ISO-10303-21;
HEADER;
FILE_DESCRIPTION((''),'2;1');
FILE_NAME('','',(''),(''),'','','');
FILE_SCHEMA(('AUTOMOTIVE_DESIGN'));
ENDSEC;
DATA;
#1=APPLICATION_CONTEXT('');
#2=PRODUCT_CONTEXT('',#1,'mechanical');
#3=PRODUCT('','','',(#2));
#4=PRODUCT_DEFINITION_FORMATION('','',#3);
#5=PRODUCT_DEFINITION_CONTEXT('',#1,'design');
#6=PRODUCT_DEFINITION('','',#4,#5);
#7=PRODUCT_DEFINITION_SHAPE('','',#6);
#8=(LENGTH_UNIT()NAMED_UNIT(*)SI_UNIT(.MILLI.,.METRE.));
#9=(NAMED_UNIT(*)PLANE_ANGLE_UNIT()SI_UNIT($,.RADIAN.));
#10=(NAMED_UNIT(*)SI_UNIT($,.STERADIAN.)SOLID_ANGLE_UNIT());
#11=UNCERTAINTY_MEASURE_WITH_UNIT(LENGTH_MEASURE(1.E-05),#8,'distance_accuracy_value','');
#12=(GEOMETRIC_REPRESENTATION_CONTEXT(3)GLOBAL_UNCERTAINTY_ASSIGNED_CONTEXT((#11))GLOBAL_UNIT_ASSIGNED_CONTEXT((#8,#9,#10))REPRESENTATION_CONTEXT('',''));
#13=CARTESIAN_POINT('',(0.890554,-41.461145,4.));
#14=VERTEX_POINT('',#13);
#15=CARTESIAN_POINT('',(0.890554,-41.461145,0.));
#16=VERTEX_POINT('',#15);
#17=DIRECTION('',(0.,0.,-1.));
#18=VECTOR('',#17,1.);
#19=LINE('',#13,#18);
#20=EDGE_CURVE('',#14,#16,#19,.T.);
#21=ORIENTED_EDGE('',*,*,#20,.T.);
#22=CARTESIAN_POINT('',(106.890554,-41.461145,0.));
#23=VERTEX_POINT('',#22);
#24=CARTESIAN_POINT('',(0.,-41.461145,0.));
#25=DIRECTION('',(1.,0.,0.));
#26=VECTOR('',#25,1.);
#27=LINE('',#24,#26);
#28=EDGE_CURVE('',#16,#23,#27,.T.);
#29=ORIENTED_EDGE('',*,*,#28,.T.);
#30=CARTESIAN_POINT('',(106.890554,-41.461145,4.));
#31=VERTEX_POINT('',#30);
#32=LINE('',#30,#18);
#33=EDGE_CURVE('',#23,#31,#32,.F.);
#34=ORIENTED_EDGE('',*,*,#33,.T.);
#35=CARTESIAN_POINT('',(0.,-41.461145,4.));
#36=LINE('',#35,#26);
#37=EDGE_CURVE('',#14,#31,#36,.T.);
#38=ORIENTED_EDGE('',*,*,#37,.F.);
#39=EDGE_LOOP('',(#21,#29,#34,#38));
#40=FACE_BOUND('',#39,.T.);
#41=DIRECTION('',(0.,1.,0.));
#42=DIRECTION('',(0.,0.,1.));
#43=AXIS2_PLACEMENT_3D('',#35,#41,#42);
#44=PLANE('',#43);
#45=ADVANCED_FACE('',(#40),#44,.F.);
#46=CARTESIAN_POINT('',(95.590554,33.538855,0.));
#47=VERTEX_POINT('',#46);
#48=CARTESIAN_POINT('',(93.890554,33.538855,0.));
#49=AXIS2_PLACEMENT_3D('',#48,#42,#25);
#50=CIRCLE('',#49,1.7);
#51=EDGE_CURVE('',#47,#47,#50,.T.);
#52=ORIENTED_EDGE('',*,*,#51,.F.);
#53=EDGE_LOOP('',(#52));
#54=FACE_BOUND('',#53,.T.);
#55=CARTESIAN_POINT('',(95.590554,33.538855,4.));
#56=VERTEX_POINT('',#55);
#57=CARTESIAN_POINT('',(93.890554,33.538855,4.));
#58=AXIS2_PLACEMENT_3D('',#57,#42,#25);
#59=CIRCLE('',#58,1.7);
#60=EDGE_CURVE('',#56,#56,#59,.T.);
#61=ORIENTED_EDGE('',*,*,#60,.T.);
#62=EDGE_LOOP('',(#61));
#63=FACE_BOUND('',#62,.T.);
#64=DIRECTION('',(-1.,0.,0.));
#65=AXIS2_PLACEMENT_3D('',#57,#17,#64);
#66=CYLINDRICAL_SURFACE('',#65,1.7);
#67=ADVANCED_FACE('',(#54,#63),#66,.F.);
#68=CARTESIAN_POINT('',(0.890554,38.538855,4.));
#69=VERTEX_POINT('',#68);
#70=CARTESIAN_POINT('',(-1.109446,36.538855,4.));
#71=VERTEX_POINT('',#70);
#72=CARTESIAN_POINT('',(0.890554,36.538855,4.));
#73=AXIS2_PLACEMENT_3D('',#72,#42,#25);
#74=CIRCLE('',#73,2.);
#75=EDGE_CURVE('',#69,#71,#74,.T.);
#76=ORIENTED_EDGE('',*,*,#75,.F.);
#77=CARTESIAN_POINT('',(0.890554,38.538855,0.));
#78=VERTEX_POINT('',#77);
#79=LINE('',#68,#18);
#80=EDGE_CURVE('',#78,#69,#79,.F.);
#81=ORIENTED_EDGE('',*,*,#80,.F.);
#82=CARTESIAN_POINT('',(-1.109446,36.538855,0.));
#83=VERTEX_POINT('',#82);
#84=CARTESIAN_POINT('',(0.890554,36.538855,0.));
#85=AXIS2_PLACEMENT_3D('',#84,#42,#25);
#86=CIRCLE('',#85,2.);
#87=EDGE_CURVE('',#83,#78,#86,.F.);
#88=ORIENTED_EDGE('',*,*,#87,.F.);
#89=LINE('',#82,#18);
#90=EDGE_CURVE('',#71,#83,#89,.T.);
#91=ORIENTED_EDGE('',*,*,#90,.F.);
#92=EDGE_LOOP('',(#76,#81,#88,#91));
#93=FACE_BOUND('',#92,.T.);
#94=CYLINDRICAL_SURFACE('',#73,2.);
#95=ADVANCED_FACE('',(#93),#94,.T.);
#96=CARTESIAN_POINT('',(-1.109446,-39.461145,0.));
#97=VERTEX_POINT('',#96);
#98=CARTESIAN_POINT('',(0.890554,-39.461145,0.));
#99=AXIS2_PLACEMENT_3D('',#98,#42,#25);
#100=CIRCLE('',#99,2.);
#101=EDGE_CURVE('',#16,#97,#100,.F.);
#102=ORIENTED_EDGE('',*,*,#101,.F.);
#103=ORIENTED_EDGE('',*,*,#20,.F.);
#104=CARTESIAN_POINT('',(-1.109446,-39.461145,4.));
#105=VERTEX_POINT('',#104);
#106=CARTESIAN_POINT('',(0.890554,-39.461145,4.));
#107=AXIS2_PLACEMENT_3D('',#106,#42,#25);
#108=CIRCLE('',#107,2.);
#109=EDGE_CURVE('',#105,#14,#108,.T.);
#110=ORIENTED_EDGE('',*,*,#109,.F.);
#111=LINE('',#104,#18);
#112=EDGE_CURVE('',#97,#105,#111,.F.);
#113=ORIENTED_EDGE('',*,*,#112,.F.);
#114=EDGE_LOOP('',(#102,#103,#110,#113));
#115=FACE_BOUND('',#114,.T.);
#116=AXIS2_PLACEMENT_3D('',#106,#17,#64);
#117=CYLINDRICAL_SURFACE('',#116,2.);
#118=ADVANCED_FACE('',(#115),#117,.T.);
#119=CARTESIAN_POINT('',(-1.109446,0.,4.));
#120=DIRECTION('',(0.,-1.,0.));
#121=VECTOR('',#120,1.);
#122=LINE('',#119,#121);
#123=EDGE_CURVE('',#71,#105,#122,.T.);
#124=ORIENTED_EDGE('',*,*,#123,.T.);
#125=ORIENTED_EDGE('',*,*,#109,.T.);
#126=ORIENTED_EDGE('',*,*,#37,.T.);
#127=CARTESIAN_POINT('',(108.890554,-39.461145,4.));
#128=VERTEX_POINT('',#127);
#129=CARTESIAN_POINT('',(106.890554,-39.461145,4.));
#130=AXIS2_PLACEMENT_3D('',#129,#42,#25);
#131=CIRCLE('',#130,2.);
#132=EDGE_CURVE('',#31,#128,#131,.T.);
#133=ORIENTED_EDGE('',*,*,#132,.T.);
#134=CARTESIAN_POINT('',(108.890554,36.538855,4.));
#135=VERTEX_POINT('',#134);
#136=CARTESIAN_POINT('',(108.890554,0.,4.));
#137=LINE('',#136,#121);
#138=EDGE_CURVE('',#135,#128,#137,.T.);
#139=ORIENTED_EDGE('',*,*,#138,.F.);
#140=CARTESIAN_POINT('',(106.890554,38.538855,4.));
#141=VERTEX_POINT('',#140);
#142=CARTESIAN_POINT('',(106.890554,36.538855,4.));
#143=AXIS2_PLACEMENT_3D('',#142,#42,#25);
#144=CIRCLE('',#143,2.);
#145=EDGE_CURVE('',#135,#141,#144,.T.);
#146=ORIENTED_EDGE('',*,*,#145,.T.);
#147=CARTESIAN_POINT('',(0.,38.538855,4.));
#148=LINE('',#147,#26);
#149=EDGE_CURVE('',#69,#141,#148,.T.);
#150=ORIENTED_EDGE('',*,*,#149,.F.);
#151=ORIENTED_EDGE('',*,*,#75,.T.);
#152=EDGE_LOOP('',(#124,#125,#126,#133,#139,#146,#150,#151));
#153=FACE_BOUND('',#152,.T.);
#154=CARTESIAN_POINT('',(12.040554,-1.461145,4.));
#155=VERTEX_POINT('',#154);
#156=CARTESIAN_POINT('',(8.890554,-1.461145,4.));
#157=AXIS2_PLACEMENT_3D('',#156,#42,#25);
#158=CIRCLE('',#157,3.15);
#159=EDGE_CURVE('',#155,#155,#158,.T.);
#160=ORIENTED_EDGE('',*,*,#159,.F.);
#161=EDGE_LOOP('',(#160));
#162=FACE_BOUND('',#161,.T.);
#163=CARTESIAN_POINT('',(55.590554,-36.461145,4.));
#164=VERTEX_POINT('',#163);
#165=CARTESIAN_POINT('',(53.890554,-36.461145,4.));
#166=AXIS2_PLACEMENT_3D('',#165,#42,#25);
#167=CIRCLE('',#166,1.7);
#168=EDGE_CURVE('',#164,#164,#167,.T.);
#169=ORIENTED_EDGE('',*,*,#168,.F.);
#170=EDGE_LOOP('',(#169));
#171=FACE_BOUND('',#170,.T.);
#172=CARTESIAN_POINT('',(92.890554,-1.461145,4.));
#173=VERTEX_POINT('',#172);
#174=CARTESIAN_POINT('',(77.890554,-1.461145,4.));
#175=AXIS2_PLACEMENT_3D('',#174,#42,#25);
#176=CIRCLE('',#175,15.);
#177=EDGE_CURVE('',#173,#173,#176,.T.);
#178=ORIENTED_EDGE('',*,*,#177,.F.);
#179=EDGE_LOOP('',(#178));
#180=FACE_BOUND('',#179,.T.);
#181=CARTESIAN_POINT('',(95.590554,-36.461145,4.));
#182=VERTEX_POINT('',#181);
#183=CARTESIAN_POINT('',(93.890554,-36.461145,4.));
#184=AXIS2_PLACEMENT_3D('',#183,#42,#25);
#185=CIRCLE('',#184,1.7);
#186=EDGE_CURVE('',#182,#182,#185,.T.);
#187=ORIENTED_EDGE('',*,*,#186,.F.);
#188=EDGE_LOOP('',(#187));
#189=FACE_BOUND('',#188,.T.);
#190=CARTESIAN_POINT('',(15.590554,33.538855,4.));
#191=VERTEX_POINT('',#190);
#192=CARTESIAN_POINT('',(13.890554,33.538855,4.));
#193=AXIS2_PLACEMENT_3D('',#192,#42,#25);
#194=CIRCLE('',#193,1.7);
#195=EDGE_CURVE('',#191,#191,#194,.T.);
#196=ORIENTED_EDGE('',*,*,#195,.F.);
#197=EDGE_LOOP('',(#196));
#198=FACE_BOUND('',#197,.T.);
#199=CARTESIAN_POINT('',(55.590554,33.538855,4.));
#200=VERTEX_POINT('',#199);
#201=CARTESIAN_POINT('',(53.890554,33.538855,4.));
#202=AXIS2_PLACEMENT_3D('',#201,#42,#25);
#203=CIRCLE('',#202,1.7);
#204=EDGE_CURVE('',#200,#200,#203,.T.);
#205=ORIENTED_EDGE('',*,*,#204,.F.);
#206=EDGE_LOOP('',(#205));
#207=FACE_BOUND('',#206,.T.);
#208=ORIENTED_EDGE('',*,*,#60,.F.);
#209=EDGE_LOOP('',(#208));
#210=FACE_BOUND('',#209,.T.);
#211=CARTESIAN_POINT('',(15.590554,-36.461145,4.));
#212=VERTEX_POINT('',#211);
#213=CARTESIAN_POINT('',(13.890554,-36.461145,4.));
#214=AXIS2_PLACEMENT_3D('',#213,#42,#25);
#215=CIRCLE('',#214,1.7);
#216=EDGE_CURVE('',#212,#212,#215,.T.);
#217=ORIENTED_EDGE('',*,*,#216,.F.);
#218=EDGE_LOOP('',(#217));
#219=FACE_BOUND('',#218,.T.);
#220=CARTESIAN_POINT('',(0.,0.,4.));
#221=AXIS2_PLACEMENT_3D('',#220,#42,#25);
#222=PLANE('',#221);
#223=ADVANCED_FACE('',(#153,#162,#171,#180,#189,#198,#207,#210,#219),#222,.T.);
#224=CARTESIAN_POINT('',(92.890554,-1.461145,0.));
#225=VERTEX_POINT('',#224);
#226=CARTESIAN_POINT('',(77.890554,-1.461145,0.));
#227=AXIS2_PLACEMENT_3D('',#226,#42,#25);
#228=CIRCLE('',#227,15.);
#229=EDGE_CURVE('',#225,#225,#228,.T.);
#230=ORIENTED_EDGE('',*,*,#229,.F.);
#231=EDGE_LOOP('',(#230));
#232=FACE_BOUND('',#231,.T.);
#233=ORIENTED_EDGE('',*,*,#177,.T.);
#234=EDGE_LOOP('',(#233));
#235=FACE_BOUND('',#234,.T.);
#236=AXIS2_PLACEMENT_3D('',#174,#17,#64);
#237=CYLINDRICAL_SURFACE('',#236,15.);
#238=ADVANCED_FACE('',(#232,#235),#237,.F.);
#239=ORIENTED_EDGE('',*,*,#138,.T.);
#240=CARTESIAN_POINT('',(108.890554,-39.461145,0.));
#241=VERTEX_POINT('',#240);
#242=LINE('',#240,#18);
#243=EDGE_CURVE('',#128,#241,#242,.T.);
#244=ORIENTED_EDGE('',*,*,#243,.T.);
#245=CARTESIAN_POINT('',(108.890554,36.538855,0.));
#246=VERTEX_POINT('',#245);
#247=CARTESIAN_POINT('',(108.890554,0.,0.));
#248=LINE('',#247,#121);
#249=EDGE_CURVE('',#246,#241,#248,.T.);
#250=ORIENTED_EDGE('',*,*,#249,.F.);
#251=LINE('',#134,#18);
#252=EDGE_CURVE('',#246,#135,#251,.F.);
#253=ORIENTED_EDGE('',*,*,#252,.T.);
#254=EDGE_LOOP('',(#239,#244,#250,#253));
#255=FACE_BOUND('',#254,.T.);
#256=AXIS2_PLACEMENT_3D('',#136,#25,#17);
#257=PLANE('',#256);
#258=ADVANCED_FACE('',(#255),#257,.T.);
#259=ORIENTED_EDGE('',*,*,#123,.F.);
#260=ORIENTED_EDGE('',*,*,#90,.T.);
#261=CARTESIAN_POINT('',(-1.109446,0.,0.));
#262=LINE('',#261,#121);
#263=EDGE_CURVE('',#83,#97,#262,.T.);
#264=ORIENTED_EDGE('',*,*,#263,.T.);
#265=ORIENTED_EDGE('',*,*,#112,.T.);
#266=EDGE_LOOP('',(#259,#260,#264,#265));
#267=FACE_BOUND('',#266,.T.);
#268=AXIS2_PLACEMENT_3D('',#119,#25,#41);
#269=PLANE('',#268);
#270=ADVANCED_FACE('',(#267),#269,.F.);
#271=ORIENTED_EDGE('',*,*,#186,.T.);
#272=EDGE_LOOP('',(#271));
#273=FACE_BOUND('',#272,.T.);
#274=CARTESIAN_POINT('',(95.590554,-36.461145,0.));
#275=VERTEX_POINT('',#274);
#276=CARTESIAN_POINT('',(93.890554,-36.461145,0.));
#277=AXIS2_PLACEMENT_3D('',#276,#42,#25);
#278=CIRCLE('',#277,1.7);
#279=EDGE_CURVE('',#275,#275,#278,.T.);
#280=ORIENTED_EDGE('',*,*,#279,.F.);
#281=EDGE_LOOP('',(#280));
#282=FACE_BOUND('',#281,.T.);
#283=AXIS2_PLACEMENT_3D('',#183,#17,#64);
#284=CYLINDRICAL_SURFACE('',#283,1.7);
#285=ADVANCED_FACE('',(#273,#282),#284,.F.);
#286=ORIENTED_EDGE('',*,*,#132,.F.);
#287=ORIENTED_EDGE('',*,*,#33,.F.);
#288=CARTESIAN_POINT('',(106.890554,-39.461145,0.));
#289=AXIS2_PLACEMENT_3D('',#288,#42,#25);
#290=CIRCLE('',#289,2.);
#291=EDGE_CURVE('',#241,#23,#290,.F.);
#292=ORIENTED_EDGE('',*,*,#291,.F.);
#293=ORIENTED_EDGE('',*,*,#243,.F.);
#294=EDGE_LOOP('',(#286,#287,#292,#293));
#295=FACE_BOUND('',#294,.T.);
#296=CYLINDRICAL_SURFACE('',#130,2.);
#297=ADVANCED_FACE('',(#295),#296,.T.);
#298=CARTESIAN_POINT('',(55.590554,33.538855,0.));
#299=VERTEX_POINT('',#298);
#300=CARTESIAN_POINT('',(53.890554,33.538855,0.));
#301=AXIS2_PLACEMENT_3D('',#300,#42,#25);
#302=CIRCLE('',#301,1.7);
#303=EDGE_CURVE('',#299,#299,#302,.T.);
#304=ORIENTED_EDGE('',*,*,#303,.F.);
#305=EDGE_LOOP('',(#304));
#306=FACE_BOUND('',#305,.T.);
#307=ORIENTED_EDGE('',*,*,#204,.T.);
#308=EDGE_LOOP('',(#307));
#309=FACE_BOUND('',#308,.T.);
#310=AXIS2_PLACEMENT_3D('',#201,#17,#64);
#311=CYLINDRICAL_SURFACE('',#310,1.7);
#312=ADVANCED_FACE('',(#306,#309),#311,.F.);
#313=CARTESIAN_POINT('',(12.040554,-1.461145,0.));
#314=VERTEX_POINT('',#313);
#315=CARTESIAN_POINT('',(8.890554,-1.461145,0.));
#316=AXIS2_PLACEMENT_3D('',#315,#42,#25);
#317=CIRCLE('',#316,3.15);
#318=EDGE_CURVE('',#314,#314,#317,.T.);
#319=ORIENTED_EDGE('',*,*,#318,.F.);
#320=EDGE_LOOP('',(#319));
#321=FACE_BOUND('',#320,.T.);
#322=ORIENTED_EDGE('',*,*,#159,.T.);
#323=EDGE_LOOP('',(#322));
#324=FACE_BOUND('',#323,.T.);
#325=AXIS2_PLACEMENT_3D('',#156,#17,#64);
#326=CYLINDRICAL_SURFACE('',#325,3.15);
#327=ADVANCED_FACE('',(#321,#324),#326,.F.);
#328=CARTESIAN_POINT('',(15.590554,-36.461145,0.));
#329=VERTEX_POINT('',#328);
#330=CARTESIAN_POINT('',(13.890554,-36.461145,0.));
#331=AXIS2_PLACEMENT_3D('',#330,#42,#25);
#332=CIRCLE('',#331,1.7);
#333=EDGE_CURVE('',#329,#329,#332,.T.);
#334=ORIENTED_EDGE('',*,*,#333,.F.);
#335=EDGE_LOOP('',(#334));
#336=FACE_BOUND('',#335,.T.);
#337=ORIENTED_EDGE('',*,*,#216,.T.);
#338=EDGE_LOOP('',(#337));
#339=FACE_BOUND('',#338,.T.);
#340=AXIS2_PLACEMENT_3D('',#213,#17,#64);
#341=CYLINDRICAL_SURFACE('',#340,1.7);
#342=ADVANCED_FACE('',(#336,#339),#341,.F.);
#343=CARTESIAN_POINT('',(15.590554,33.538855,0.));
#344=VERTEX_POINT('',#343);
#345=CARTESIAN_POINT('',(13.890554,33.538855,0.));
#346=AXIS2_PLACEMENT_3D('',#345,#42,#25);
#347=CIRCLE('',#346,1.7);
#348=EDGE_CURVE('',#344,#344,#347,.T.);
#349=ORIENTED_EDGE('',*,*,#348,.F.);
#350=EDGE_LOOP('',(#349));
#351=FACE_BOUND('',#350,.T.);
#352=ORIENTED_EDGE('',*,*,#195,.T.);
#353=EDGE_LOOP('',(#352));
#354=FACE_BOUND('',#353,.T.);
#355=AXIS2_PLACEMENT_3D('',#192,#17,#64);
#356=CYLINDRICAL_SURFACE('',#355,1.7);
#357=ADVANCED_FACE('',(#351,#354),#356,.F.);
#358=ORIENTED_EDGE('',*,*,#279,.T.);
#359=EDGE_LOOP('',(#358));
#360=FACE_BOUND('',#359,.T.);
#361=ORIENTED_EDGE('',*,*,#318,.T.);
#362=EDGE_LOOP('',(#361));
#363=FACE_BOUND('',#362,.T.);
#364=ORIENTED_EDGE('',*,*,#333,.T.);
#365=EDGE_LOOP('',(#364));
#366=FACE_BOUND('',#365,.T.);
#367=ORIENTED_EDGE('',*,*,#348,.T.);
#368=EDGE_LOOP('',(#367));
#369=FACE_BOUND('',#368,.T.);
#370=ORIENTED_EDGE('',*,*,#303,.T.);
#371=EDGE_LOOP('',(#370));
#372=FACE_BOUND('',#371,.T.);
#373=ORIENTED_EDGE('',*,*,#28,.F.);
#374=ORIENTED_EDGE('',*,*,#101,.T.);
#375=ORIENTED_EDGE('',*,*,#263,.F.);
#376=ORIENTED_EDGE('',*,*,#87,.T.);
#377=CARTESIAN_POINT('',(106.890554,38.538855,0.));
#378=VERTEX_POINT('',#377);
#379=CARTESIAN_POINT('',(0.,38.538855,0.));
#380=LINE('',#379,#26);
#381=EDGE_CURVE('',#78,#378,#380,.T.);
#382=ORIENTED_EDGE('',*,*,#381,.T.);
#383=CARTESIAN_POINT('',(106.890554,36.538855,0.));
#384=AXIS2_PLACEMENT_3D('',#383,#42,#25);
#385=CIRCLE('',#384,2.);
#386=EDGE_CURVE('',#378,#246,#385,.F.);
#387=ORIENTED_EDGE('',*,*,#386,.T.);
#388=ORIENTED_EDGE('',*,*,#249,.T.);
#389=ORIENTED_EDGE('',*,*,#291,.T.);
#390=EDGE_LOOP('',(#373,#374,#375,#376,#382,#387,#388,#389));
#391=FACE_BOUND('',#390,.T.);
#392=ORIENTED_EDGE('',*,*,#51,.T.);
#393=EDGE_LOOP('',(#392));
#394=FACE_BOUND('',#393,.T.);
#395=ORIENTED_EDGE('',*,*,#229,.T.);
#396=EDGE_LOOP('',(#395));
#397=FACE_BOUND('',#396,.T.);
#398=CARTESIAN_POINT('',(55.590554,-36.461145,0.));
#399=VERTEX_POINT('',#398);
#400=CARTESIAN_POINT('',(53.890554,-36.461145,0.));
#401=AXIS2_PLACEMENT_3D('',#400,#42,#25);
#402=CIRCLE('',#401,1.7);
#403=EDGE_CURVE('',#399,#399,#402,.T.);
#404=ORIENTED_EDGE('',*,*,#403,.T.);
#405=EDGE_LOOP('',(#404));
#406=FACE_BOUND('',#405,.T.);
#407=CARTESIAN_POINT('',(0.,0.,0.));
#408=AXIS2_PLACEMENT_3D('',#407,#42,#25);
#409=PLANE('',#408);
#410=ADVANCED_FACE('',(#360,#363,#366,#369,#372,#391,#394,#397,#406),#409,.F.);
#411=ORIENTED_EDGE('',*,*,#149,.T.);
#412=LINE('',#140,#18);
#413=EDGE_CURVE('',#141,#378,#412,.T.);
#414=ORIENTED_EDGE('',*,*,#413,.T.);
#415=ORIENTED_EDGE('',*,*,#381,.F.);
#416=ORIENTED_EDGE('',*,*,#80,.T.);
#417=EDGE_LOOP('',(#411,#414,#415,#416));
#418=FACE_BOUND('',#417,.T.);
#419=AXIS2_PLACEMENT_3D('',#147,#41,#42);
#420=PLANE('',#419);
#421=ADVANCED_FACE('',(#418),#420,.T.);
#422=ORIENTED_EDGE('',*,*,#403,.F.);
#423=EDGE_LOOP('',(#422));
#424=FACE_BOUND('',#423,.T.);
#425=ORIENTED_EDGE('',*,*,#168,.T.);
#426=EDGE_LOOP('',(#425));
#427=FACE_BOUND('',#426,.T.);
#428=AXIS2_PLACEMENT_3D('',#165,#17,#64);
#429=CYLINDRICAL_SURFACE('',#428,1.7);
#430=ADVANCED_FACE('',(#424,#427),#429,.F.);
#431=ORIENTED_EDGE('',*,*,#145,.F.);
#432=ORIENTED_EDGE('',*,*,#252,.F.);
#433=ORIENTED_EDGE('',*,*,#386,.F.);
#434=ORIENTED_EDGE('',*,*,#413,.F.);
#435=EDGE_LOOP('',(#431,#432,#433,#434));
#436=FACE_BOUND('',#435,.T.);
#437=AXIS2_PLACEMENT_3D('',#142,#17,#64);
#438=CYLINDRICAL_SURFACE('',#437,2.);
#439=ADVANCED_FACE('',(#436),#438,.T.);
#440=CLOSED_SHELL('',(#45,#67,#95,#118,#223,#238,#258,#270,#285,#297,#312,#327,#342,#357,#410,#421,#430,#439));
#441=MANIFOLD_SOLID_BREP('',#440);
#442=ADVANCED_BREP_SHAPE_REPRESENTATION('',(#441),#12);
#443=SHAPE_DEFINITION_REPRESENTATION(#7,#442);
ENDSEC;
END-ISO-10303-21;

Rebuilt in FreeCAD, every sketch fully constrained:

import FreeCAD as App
import Part
import Sketcher
Q = App.Units.Quantity


def edges_at(feature, points):
    """Names of the edges that pass closest to the given points."""
    edges = feature.Shape.Edges
    near = lambda p: min(range(len(edges)), key=lambda i: edges[i].distToShape(Part.Vertex(*p))[0])
    return sorted({f"Edge{near(p) + 1}" for p in points})


def add_polygon(sketch, points):
    """Adds a closed chain of lines whose ends are joined by coincident constraints."""
    first, n = sketch.GeometryCount, len(points)
    for a, b in zip(points, points[1:] + points[:1]):
        sketch.addGeometry(Part.LineSegment(App.Vector(*a, 0), App.Vector(*b, 0)), False)
    for i in range(n):
        sketch.addConstraint(Sketcher.Constraint("Coincident", first + i, 2, first + (i + 1) % n, 1))

doc = App.newDocument("Part")
params = doc.addObject("Spreadsheet::Sheet", "Params")
for row, (alias, value) in enumerate([
    ("sketch1_diameter", "30 mm"),
    ("sketch1_diameter2", "3.4 mm"),
    ("sketch1_diameter3", "6.3 mm"),
    ("sketch1_width", "110 mm"),
    ("sketch1_height", "80 mm"),
    ("pad1_length", "4 mm"),
    ("fillet_radius", "2 mm"),
], start=1):
    params.set(f"A{row}", alias)
    params.set(f"B{row}", "=" + value)
    params.setAlias(f"B{row}", alias)

body = doc.addObject("PartDesign::Body", "Body")

# Sketch on XY plane
sketch1 = body.newObject("Sketcher::SketchObject", "Sketch")
sketch1.AttachmentSupport = (doc.getObject("XY_Plane"), [""])
sketch1.MapMode = "FlatFace"
add_polygon(sketch1, [(-1.1, 38.5), (-1.1, -41.5), (108.9, -41.5), (108.9, 38.5)])  # lines 0-3
sketch1.addGeometry(Part.Circle(App.Vector(13.9, -36.5, 0), App.Vector(0, 0, 1), 1.7), False)  # 4
sketch1.addGeometry(Part.Circle(App.Vector(53.9, -36.5, 0), App.Vector(0, 0, 1), 1.7), False)  # 5
sketch1.addGeometry(Part.Circle(App.Vector(93.9, -36.5, 0), App.Vector(0, 0, 1), 1.7), False)  # 6
sketch1.addGeometry(Part.Circle(App.Vector(8.9, -1.5, 0), App.Vector(0, 0, 1), 3.1), False)  # 7
sketch1.addGeometry(Part.Circle(App.Vector(13.9, 33.5, 0), App.Vector(0, 0, 1), 1.7), False)  # 8
sketch1.addGeometry(Part.Circle(App.Vector(77.9, -1.5, 0), App.Vector(0, 0, 1), 15), False)  # 9
sketch1.addGeometry(Part.Circle(App.Vector(53.9, 33.5, 0), App.Vector(0, 0, 1), 1.7), False)  # 10
sketch1.addGeometry(Part.Circle(App.Vector(93.9, 33.5, 0), App.Vector(0, 0, 1), 1.7), False)  # 11
sketch1.addConstraint(Sketcher.Constraint("Vertical", 0))
sketch1.addConstraint(Sketcher.Constraint("Horizontal", 1))
sketch1.addConstraint(Sketcher.Constraint("Vertical", 2))
sketch1.addConstraint(Sketcher.Constraint("Horizontal", 3))
sketch1.addConstraint(Sketcher.Constraint("Equal", 4, 5))
sketch1.addConstraint(Sketcher.Constraint("Equal", 5, 6))
sketch1.addConstraint(Sketcher.Constraint("Equal", 6, 8))
sketch1.addConstraint(Sketcher.Constraint("Equal", 8, 10))
sketch1.addConstraint(Sketcher.Constraint("Equal", 10, 11))
sketch1.addConstraint(Sketcher.Constraint("Horizontal", 4, 3, 5, 3))
sketch1.addConstraint(Sketcher.Constraint("Horizontal", 5, 3, 6, 3))
sketch1.addConstraint(Sketcher.Constraint("Horizontal", 7, 3, 9, 3))
sketch1.addConstraint(Sketcher.Constraint("Horizontal", 8, 3, 10, 3))
sketch1.addConstraint(Sketcher.Constraint("Horizontal", 10, 3, 11, 3))
sketch1.addConstraint(Sketcher.Constraint("Vertical", 4, 3, 8, 3))
sketch1.addConstraint(Sketcher.Constraint("Vertical", 5, 3, 10, 3))
sketch1.addConstraint(Sketcher.Constraint("Vertical", 6, 3, 11, 3))
sketch1.addConstraint(Sketcher.Constraint("Diameter", 9, Q("30 mm")))
sketch1.addConstraint(Sketcher.Constraint("Diameter", 4, Q("3.4 mm")))
sketch1.addConstraint(Sketcher.Constraint("Diameter", 7, Q("6.3 mm")))
sketch1.addConstraint(Sketcher.Constraint("DistanceX", 1, 1, 1, 2, Q("110 mm")))
sketch1.addConstraint(Sketcher.Constraint("DistanceY", 0, 2, 0, 1, Q("80 mm")))
sketch1.addConstraint(Sketcher.Constraint("DistanceX", 4, 3, 5, 3, Q("40 mm")))
sketch1.addConstraint(Sketcher.Constraint("DistanceX", 5, 3, 6, 3, Q("40 mm")))
sketch1.addConstraint(Sketcher.Constraint("DistanceX", 7, 3, 4, 3, Q("5 mm")))
sketch1.addConstraint(Sketcher.Constraint("DistanceY", 4, 3, 7, 3, Q("35 mm")))
sketch1.addConstraint(Sketcher.Constraint("DistanceY", 7, 3, 8, 3, Q("35 mm")))
sketch1.addConstraint(Sketcher.Constraint("DistanceX", 9, 3, 6, 3, Q("16 mm")))
sketch1.addConstraint(Sketcher.Constraint("DistanceX", 0, 2, 4, 3, Q("15 mm")))
sketch1.addConstraint(Sketcher.Constraint("DistanceY", 0, 2, 4, 3, Q("5 mm")))
sketch1.addConstraint(Sketcher.Constraint("DistanceX", -1, 1, 4, 3, Q("13.890554 mm")))
sketch1.addConstraint(Sketcher.Constraint("DistanceY", 4, 3, -1, 1, Q("36.461145 mm")))
sketch1.setExpression("Constraints[21]", "Params.sketch1_diameter")
sketch1.setExpression("Constraints[22]", "Params.sketch1_diameter2")
sketch1.setExpression("Constraints[23]", "Params.sketch1_diameter3")
sketch1.setExpression("Constraints[24]", "Params.sketch1_width")
sketch1.setExpression("Constraints[25]", "Params.sketch1_height")
pad1 = body.newObject("PartDesign::Pad", "Pad")
pad1.Profile = sketch1
pad1.setExpression("Length", "Params.pad1_length")
doc.recompute()

fillet = body.newObject("PartDesign::Fillet", "Fillet")
fillet.Base = (pad1, edges_at(pad1, [
    (108.891, -41.461, 2),
    (-1.109, -41.461, 2),
    (-1.109, 38.539, 2),
    (108.891, 38.539, 2),
]))
fillet.setExpression("Radius", "Params.fillet_radius")

doc.recompute()
